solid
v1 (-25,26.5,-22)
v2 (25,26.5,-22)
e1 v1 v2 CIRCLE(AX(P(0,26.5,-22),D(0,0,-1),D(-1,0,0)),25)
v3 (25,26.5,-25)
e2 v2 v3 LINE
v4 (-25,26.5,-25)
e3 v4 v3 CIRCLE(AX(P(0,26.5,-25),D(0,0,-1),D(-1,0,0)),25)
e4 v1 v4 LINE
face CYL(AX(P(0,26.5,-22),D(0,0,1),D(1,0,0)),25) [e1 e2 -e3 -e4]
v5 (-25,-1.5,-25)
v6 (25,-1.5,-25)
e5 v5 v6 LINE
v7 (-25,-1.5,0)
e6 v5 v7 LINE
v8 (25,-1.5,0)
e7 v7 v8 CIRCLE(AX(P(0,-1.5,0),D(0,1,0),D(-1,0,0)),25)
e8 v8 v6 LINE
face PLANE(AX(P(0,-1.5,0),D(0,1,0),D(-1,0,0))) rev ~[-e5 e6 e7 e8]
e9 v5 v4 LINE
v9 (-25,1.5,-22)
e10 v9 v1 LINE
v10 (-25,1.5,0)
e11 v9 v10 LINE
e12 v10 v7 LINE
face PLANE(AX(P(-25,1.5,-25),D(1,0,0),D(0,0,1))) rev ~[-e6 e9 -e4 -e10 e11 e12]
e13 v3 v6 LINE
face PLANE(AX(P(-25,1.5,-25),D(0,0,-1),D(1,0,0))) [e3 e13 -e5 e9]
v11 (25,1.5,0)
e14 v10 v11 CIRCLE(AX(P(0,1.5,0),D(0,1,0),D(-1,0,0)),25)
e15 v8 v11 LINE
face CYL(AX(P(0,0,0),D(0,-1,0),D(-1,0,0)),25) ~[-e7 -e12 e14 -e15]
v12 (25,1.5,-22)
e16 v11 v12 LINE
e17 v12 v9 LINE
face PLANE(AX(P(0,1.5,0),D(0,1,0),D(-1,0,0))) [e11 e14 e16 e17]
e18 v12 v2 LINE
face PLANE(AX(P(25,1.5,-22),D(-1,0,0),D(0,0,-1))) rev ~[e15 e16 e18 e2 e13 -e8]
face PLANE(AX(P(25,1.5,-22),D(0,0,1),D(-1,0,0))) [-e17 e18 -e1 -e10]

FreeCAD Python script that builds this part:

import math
import FreeCAD as App
import Part
import Sketcher
from FreeCAD import Vector
Q = App.Units.Quantity

doc = App.newDocument("Part")
body = doc.addObject("PartDesign::Body", "Body")

# Sketch on XZ plane
sketch1 = body.newObject("Sketcher::SketchObject", "Sketch")
sketch1.AttachmentSupport = (doc.getObject("XZ_Plane"), [""])
sketch1.MapMode = "FlatFace"
sketch1.addGeometry([
    Part.ArcOfCircle(Part.Circle(Vector(0, 0, 0), Vector(0, 0, 1), 25), math.radians(0), math.radians(180)),
    Part.LineSegment(Vector(25, 0, 0), Vector(25, -25, 0)),
    Part.LineSegment(Vector(25, -25, 0), Vector(-25, -25, 0)),
    Part.LineSegment(Vector(-25, -25, 0), Vector(-25, 0, 0)),
], False)
sketch1.addConstraint([
    Sketcher.Constraint("Tangent", 0, 1, 1, 1),
    Sketcher.Constraint("Coincident", 1, 2, 2, 1),
    Sketcher.Constraint("Coincident", 2, 2, 3, 1),
    Sketcher.Constraint("Tangent", 3, 2, 0, 2),
    Sketcher.Constraint("Vertical", 1),
    Sketcher.Constraint("Horizontal", 2),
    Sketcher.Constraint("Vertical", 3),
    Sketcher.Constraint("Coincident", 0, 3, -1, 1),
    Sketcher.Constraint("Radius", 0, Q("25 mm")),
    Sketcher.Constraint("DistanceY", 1, 2, 1, 1, Q("25 mm")),
])
pad1 = body.newObject("PartDesign::Pad", "Pad")
pad1.Profile = sketch1
pad1.Length = 3
pad1.Midplane = True

# Sketch on XZ plane
sketch2 = body.newObject("Sketcher::SketchObject", "Sketch001")
sketch2.AttachmentSupport = (doc.getObject("XZ_Plane"), [""])
sketch2.MapMode = "FlatFace"
sketch2.AttachmentOffset = App.Placement(Vector(0, 0, -1.5), App.Rotation())
sketch2.addGeometry([
    Part.LineSegment(Vector(25, -25, 0), Vector(-25, -25, 0)),
    Part.LineSegment(Vector(-25, -25, 0), Vector(-25, -22, 0)),
    Part.LineSegment(Vector(-25, -22, 0), Vector(25, -22, 0)),
    Part.LineSegment(Vector(25, -22, 0), Vector(25, -25, 0)),
], False)
sketch2.addConstraint([
    Sketcher.Constraint("Coincident", 0, 2, 1, 1),
    Sketcher.Constraint("Coincident", 1, 2, 2, 1),
    Sketcher.Constraint("Coincident", 2, 2, 3, 1),
    Sketcher.Constraint("Coincident", 3, 2, 0, 1),
    Sketcher.Constraint("Horizontal", 0),
    Sketcher.Constraint("Vertical", 1),
    Sketcher.Constraint("Horizontal", 2),
    Sketcher.Constraint("Vertical", 3),
    Sketcher.Constraint("DistanceY", 1, 1, 1, 2, Q("3 mm")),
    Sketcher.Constraint("DistanceX", 0, 2, 0, 1, Q("50 mm")),
    Sketcher.Constraint("DistanceX", 0, 2, -1, 1, Q("25 mm")),
    Sketcher.Constraint("DistanceY", 0, 2, -1, 1, Q("25 mm")),
])
pad2 = body.newObject("PartDesign::Pad", "Pad001")
pad2.Profile = sketch2
pad2.Length = 50
pad2.Reversed = True

# Sketch on XY plane
sketch3 = body.newObject("Sketcher::SketchObject", "Sketch002")
sketch3.AttachmentSupport = (doc.getObject("XY_Plane"), [""])
sketch3.MapMode = "FlatFace"
sketch3.AttachmentOffset = App.Placement(Vector(0, 0, -22), App.Rotation())
sketch3.addGeometry([
    Part.ArcOfCircle(Part.Circle(Vector(0, 26.5, 0), Vector(0, 0, 1), 25), math.radians(0), math.radians(90)),  # 0
    Part.LineSegment(Vector(25, 26.5, 0), Vector(25, 51.5, 0)),  # 1
    Part.LineSegment(Vector(25, 51.5, 0), Vector(0, 51.5, 0)),  # 2
    Part.ArcOfCircle(Part.Circle(Vector(0, 26.5, 0), Vector(0, 0, 1), 25), math.radians(90), math.radians(180)),  # 3
    Part.LineSegment(Vector(0, 51.5, 0), Vector(-25, 51.5, 0)),  # 4
    Part.LineSegment(Vector(-25, 51.5, 0), Vector(-25, 26.5, 0)),  # 5
], False)
sketch3.addConstraint([
    Sketcher.Constraint("Tangent", 0, 1, 1, 1),
    Sketcher.Constraint("Coincident", 1, 2, 2, 1),
    Sketcher.Constraint("Tangent", 2, 2, 0, 2),
    Sketcher.Constraint("Tangent", 3, 1, 4, 1),
    Sketcher.Constraint("Coincident", 4, 2, 5, 1),
    Sketcher.Constraint("Tangent", 5, 2, 3, 2),
    Sketcher.Constraint("Vertical", 1),
    Sketcher.Constraint("Horizontal", 2),
    Sketcher.Constraint("Horizontal", 4),
    Sketcher.Constraint("Vertical", 5),
    Sketcher.Constraint("Coincident", 3, 3, 0, 3),
    Sketcher.Constraint("Equal", 0, 3),
    Sketcher.Constraint("PointOnObject", 0, 3, -2),
    Sketcher.Constraint("Radius", 0, Q("25 mm")),
    Sketcher.Constraint("DistanceY", -1, 1, 0, 3, Q("26.5 mm")),
])
pocket1 = body.newObject("PartDesign::Pocket", "Pocket")
pocket1.Profile = sketch3
pocket1.Length = 3

doc.recompute()
